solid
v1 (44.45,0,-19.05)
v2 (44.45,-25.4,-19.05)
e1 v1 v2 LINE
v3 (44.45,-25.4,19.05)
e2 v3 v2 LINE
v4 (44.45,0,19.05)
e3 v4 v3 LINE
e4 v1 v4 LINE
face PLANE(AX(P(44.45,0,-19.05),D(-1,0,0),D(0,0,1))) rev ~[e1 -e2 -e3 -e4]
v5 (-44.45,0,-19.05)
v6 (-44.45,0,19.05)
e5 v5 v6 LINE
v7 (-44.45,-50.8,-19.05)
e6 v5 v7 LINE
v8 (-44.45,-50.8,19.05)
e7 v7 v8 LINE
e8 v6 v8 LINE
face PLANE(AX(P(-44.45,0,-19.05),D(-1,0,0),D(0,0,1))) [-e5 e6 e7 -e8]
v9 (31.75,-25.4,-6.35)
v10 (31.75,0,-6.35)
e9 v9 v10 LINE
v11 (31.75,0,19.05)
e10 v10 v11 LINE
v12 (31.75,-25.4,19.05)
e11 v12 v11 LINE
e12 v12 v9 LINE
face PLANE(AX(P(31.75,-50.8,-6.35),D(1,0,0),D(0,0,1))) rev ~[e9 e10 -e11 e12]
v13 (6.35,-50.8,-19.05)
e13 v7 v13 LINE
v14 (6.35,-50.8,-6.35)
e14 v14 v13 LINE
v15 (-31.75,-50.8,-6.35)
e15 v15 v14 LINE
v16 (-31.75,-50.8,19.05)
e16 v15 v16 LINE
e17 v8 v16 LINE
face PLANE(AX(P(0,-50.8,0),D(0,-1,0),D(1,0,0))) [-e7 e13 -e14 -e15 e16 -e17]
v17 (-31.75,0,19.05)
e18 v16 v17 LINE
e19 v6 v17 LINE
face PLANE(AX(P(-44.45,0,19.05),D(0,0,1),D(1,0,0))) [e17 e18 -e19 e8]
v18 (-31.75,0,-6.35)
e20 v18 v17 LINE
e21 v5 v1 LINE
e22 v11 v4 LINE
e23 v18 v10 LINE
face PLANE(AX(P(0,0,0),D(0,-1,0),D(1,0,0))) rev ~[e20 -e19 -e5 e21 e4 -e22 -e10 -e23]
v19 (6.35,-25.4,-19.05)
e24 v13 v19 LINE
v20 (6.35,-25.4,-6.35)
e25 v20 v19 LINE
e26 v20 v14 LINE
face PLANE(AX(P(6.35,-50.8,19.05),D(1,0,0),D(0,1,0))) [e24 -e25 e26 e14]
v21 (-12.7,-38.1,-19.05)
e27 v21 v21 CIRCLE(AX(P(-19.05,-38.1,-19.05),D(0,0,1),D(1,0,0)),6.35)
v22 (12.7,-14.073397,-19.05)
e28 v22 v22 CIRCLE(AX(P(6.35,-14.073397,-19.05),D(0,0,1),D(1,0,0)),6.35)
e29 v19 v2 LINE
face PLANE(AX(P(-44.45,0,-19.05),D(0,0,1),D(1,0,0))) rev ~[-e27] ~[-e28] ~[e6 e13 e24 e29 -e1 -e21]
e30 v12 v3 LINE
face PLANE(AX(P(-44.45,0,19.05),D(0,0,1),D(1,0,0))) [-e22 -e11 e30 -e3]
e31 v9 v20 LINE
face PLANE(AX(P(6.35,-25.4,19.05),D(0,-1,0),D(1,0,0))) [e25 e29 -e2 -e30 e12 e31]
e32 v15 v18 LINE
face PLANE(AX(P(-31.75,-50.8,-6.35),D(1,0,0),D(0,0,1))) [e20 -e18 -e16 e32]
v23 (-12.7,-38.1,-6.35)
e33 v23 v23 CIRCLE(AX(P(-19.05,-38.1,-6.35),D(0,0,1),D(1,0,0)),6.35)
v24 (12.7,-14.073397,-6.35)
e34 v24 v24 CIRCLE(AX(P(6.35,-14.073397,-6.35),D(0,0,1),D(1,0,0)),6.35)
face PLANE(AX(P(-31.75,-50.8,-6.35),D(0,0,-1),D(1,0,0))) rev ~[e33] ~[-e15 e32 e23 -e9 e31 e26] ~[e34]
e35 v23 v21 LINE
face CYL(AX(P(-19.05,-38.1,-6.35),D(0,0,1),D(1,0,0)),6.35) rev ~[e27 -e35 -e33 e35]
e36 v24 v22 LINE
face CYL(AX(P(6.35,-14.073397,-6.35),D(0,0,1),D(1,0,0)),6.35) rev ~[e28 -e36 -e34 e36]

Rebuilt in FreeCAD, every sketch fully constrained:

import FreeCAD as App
import Part
import Sketcher
from FreeCAD import Vector
Q = App.Units.Quantity

doc = App.newDocument("Part")
body = doc.addObject("PartDesign::Body", "Body")

sketch1 = body.newObject("Sketcher::SketchObject", "Sketch")
sketch1.AttachmentSupport = (doc.getObject("XZ_Plane"), [""])
sketch1.MapMode = "FlatFace"
sketch1.addGeometry(Part.LineSegment(Vector(-44.45, 19.05, 0), Vector(-44.45, -19.05, 0)), False)
sketch1.addGeometry(Part.LineSegment(Vector(-44.45, -19.05, 0), Vector(44.45, -19.05, 0)), False)
sketch1.addGeometry(Part.LineSegment(Vector(44.45, -19.05, 0), Vector(44.45, 19.05, 0)), False)
sketch1.addGeometry(Part.LineSegment(Vector(44.45, 19.05, 0), Vector(-44.45, 19.05, 0)), False)
sketch1.addConstraint(Sketcher.Constraint("Coincident", 0, 2, 1, 1))
sketch1.addConstraint(Sketcher.Constraint("Coincident", 1, 2, 2, 1))
sketch1.addConstraint(Sketcher.Constraint("Coincident", 2, 2, 3, 1))
sketch1.addConstraint(Sketcher.Constraint("Coincident", 3, 2, 0, 1))
sketch1.addConstraint(Sketcher.Constraint("Vertical", 0))
sketch1.addConstraint(Sketcher.Constraint("Horizontal", 1))
sketch1.addConstraint(Sketcher.Constraint("Vertical", 2))
sketch1.addConstraint(Sketcher.Constraint("Horizontal", 3))
sketch1.addConstraint(Sketcher.Constraint("Symmetric", 0, 2, 2, 2, -1, 1))
sketch1.addConstraint(Sketcher.Constraint("DistanceX", 1, 1, 1, 2, Q("3.5 in")))
sketch1.addConstraint(Sketcher.Constraint("DistanceY", 0, 2, 0, 1, Q("1.5 in")))
pad1 = body.newObject("PartDesign::Pad", "Pad")
pad1.Profile = sketch1
pad1.Length = Q("2 in")

sketch2 = body.newObject("Sketcher::SketchObject", "Sketch001")
sketch2.AttachmentSupport = (doc.getObject("XZ_Plane"), [""])
sketch2.MapMode = "FlatFace"
sketch2.AttachmentOffset = App.Placement(Vector(0, 0, 2 * 25.4), App.Rotation())
sketch2.addGeometry(Part.LineSegment(Vector(-31.75, 19.05, 0), Vector(-31.75, -6.35, 0)), False)
sketch2.addGeometry(Part.LineSegment(Vector(-31.75, -6.35, 0), Vector(31.75, -6.35, 0)), False)
sketch2.addGeometry(Part.LineSegment(Vector(31.75, -6.35, 0), Vector(31.75, 19.05, 0)), False)
sketch2.addGeometry(Part.LineSegment(Vector(31.75, 19.05, 0), Vector(-31.75, 19.05, 0)), False)
sketch2.addConstraint(Sketcher.Constraint("Coincident", 0, 2, 1, 1))
sketch2.addConstraint(Sketcher.Constraint("Coincident", 1, 2, 2, 1))
sketch2.addConstraint(Sketcher.Constraint("Coincident", 2, 2, 3, 1))
sketch2.addConstraint(Sketcher.Constraint("Coincident", 3, 2, 0, 1))
sketch2.addConstraint(Sketcher.Constraint("Vertical", 0))
sketch2.addConstraint(Sketcher.Constraint("Horizontal", 1))
sketch2.addConstraint(Sketcher.Constraint("Vertical", 2))
sketch2.addConstraint(Sketcher.Constraint("Horizontal", 3))
sketch2.addConstraint(Sketcher.Constraint("DistanceY", 0, 2, 0, 1, Q("1 in")))
sketch2.addConstraint(Sketcher.Constraint("DistanceX", 1, 1, 1, 2, Q("2.5 in")))
sketch2.addConstraint(Sketcher.Constraint("DistanceX", 0, 2, -1, 1, Q("1.25 in")))
sketch2.addConstraint(Sketcher.Constraint("DistanceY", 0, 2, -1, 1, Q("0.25 in")))
pocket1 = body.newObject("PartDesign::Pocket", "Pocket")
pocket1.Profile = sketch2
pocket1.Type = "ThroughAll"

sketch3 = body.newObject("Sketcher::SketchObject", "Sketch002")
sketch3.AttachmentSupport = (doc.getObject("XY_Plane"), [""])
sketch3.MapMode = "FlatFace"
sketch3.AttachmentOffset = App.Placement(Vector(0, 0, 0.75 * 25.4), App.Rotation())
sketch3.addGeometry(Part.LineSegment(Vector(6.35, -25.4, 0), Vector(6.35, -50.8, 0)), False)
sketch3.addGeometry(Part.LineSegment(Vector(6.35, -50.8, 0), Vector(44.45, -50.8, 0)), False)
sketch3.addGeometry(Part.LineSegment(Vector(44.45, -50.8, 0), Vector(44.45, -25.4, 0)), False)
sketch3.addGeometry(Part.LineSegment(Vector(44.45, -25.4, 0), Vector(6.35, -25.4, 0)), False)
sketch3.addConstraint(Sketcher.Constraint("Coincident", 0, 2, 1, 1))
sketch3.addConstraint(Sketcher.Constraint("Coincident", 1, 2, 2, 1))
sketch3.addConstraint(Sketcher.Constraint("Coincident", 2, 2, 3, 1))
sketch3.addConstraint(Sketcher.Constraint("Coincident", 3, 2, 0, 1))
sketch3.addConstraint(Sketcher.Constraint("Vertical", 0))
sketch3.addConstraint(Sketcher.Constraint("Horizontal", 1))
sketch3.addConstraint(Sketcher.Constraint("Vertical", 2))
sketch3.addConstraint(Sketcher.Constraint("Horizontal", 3))
sketch3.addConstraint(Sketcher.Constraint("DistanceY", 0, 2, 0, 1, Q("1 in")))
sketch3.addConstraint(Sketcher.Constraint("DistanceX", 1, 1, 1, 2, Q("1.5 in")))
sketch3.addConstraint(Sketcher.Constraint("DistanceY", 0, 2, -1, 1, Q("2 in")))
sketch3.addConstraint(Sketcher.Constraint("DistanceX", -1, 1, 0, 2, Q("0.25 in")))
pocket2 = body.newObject("PartDesign::Pocket", "Pocket001")
pocket2.Profile = sketch3
pocket2.Type = "ThroughAll"

sketch4 = body.newObject("Sketcher::SketchObject", "Sketch003")
sketch4.AttachmentSupport = (doc.getObject("XY_Plane"), [""])
sketch4.MapMode = "FlatFace"
sketch4.AttachmentOffset = App.Placement(Vector(0, 0, -0.25 * 25.4), App.Rotation())
sketch4.addGeometry(Part.Circle(Vector(-19.05, -38.1, 0), Vector(0, 0, 1), 6.35), False)
sketch4.addConstraint(Sketcher.Constraint("Diameter", 0, Q("0.5 in")))
sketch4.addConstraint(Sketcher.Constraint("DistanceY", 0, 3, -1, 1, Q("1.5 in")))
sketch4.addConstraint(Sketcher.Constraint("DistanceX", 0, 3, -1, 1, Q("0.75 in")))
pocket3 = body.newObject("PartDesign::Pocket", "Pocket002")
pocket3.Profile = sketch4
pocket3.Type = "ThroughAll"

sketch5 = body.newObject("Sketcher::SketchObject", "Sketch004")
sketch5.AttachmentSupport = (doc.getObject("XY_Plane"), [""])
sketch5.MapMode = "FlatFace"
sketch5.AttachmentOffset = App.Placement(Vector(0, 0, -0.25 * 25.4), App.Rotation())
sketch5.addGeometry(Part.Circle(Vector(6.35, -14.073397, 0), Vector(0, 0, 1), 6.35), False)
sketch5.addConstraint(Sketcher.Constraint("Diameter", 0, Q("0.5 in")))
sketch5.addConstraint(Sketcher.Constraint("DistanceX", -1, 1, 0, 3, Q("0.25 in")))
sketch5.addConstraint(Sketcher.Constraint("DistanceY", 0, 3, -1, 1, 14.073397))
pocket4 = body.newObject("PartDesign::Pocket", "Pocket003")
pocket4.Profile = sketch5
pocket4.Type = "ThroughAll"

doc.recompute()
